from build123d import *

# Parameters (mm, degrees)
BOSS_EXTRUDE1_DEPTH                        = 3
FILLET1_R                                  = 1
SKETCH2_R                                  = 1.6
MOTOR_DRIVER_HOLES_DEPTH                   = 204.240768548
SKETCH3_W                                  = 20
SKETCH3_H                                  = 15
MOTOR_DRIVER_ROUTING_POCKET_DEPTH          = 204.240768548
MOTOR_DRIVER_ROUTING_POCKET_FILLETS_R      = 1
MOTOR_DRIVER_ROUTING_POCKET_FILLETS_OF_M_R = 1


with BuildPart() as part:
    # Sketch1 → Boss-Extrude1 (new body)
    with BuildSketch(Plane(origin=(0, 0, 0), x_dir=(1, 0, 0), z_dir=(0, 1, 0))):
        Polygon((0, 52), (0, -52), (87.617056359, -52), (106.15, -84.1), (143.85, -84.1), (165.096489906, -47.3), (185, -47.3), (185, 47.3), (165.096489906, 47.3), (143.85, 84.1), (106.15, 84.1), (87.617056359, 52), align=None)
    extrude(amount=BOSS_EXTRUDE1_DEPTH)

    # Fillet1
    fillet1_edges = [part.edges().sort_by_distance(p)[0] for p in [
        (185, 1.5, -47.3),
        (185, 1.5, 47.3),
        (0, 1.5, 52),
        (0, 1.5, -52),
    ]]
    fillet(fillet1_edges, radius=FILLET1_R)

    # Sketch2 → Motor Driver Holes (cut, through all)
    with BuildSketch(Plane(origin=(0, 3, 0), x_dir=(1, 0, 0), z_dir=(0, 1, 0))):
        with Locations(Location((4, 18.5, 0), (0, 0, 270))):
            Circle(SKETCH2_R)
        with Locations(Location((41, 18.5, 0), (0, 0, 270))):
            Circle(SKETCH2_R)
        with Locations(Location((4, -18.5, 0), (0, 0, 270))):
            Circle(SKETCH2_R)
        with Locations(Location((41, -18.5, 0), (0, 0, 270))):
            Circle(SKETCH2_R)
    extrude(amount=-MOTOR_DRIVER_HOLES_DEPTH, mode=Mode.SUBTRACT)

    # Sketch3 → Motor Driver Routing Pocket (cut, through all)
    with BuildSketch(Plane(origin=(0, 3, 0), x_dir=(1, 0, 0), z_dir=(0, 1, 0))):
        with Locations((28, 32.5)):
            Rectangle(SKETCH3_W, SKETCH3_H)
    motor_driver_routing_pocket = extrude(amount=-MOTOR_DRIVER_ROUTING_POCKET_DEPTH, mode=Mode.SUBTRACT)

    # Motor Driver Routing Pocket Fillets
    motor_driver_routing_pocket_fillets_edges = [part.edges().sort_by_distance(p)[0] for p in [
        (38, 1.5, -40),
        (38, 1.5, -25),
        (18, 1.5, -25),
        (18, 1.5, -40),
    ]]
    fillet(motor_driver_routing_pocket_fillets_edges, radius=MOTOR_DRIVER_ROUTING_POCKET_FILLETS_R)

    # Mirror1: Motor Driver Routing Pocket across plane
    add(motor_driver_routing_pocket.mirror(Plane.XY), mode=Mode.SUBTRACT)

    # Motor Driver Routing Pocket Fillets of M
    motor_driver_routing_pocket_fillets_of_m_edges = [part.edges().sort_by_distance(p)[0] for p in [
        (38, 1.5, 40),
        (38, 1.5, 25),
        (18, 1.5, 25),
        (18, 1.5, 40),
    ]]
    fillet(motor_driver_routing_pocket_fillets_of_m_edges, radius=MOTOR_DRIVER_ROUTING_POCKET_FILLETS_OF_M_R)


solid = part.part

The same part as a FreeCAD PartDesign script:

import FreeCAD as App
import Part
import Sketcher

V = App.Vector
Q = App.Units.Quantity


def edges_at(feature, points):
    """Names of the edges that pass closest to the given points."""
    edges = feature.Shape.Edges
    near = lambda p: min(range(len(edges)), key=lambda i: edges[i].distToShape(Part.Vertex(*p))[0])
    return sorted({f"Edge{near(p) + 1}" for p in points})

doc = App.newDocument("Part")
body = doc.addObject("PartDesign::Body", "Body")

sketch1 = body.newObject("Sketcher::SketchObject", "Sketch")
sketch1.AttachmentSupport = (doc.getObject("XZ_Plane"), [""])
sketch1.MapMode = "FlatFace"
sketch1.addGeometry(Part.LineSegment(V(0, -52, 0), V(0, 52, 0)), False)
sketch1.addGeometry(Part.LineSegment(V(0, 52, 0), V(88, 52, 0)), False)
sketch1.addGeometry(Part.LineSegment(V(88, 52, 0), V(106, 84, 0)), False)
sketch1.addGeometry(Part.LineSegment(V(106, 84, 0), V(144, 84, 0)), False)
sketch1.addGeometry(Part.LineSegment(V(144, 84, 0), V(165, 47, 0)), False)
sketch1.addGeometry(Part.LineSegment(V(165, 47, 0), V(185, 47, 0)), False)
sketch1.addGeometry(Part.LineSegment(V(185, 47, 0), V(185, -47, 0)), False)
sketch1.addGeometry(Part.LineSegment(V(185, -47, 0), V(165, -47, 0)), False)
sketch1.addGeometry(Part.LineSegment(V(165, -47, 0), V(144, -84, 0)), False)
sketch1.addGeometry(Part.LineSegment(V(144, -84, 0), V(106, -84, 0)), False)
sketch1.addGeometry(Part.LineSegment(V(106, -84, 0), V(88, -52, 0)), False)
sketch1.addGeometry(Part.LineSegment(V(88, -52, 0), V(0, -52, 0)), False)
sketch1.addConstraint(Sketcher.Constraint("Coincident", 0, 2, 1, 1))
sketch1.addConstraint(Sketcher.Constraint("Coincident", 1, 2, 2, 1))
sketch1.addConstraint(Sketcher.Constraint("Coincident", 2, 2, 3, 1))
sketch1.addConstraint(Sketcher.Constraint("Coincident", 3, 2, 4, 1))
sketch1.addConstraint(Sketcher.Constraint("Coincident", 4, 2, 5, 1))
sketch1.addConstraint(Sketcher.Constraint("Coincident", 5, 2, 6, 1))
sketch1.addConstraint(Sketcher.Constraint("Coincident", 6, 2, 7, 1))
sketch1.addConstraint(Sketcher.Constraint("Coincident", 7, 2, 8, 1))
sketch1.addConstraint(Sketcher.Constraint("Coincident", 8, 2, 9, 1))
sketch1.addConstraint(Sketcher.Constraint("Coincident", 9, 2, 10, 1))
sketch1.addConstraint(Sketcher.Constraint("Coincident", 10, 2, 11, 1))
sketch1.addConstraint(Sketcher.Constraint("Coincident", 11, 2, 0, 1))
sketch1.addConstraint(Sketcher.Constraint("Vertical", 0))
sketch1.addConstraint(Sketcher.Constraint("Horizontal", 1))
sketch1.addConstraint(Sketcher.Constraint("Horizontal", 3))
sketch1.addConstraint(Sketcher.Constraint("Horizontal", 5))
sketch1.addConstraint(Sketcher.Constraint("Vertical", 6))
sketch1.addConstraint(Sketcher.Constraint("Horizontal", 7))
sketch1.addConstraint(Sketcher.Constraint("Horizontal", 9))
sketch1.addConstraint(Sketcher.Constraint("Horizontal", 11))
sketch1.addConstraint(Sketcher.Constraint("Symmetric", 0, 2, 11, 2, -1, 1))
sketch1.addConstraint(Sketcher.Constraint("Symmetric", 4, 2, 7, 2, -1))
sketch1.addConstraint(Sketcher.Constraint("Symmetric", 3, 2, 8, 2, -1))
sketch1.addConstraint(Sketcher.Constraint("Parallel", 2, 8))
sketch1.addConstraint(Sketcher.Constraint("Parallel", 4, 10))
sketch1.addConstraint(Sketcher.Constraint("Vertical", 2, 2, 9, 2))
sketch1.addConstraint(Sketcher.Constraint("DistanceY", 0, 1, 0, 2, Q("104 mm")))
sketch1.addConstraint(Sketcher.Constraint("Angle", 2, Q("60 deg")))
sketch1.addConstraint(Sketcher.Constraint("DistanceX", 3, 1, 3, 2, Q("37.7 mm")))
sketch1.addConstraint(Sketcher.Constraint("DistanceY", 6, 2, 6, 1, Q("94.6 mm")))
sketch1.addConstraint(Sketcher.Constraint("DistanceX", -1, 1, 5, 2, Q("185 mm")))
sketch1.addConstraint(Sketcher.Constraint("DistanceY", -1, 1, 2, 2, Q("84.1 mm")))
sketch1.addConstraint(Sketcher.Constraint("DistanceX", -1, 1, 2, 2, Q("106.15 mm")))
pad1 = body.newObject("PartDesign::Pad", "Pad")
pad1.Profile = sketch1
pad1.Length = 3
pad1.Reversed = True
doc.recompute()

fillet = body.newObject("PartDesign::Fillet", "Fillet")
fillet.Base = (pad1, edges_at(pad1, [
    (185, 1.5, -47.3),
    (185, 1.5, 47.3),
    (0, 1.5, 52),
    (0, 1.5, -52),
]))
fillet.Radius = 1

sketch2 = body.newObject("Sketcher::SketchObject", "Sketch001")
sketch2.AttachmentSupport = (doc.getObject("XZ_Plane"), [""])
sketch2.MapMode = "FlatFace"
sketch2.AttachmentOffset = App.Placement(V(0, 0, -3), App.Rotation())
sketch2.addGeometry(Part.Circle(V(4, -18.5, 0), V(0, 0, 1), 1.6), False)
sketch2.addGeometry(Part.Circle(V(41, -18.5, 0), V(0, 0, 1), 1.6), False)
sketch2.addGeometry(Part.Circle(V(4, 18.5, 0), V(0, 0, 1), 1.6), False)
sketch2.addGeometry(Part.Circle(V(41, 18.5, 0), V(0, 0, 1), 1.6), False)
sketch2.addConstraint(Sketcher.Constraint("Equal", 0, 1))
sketch2.addConstraint(Sketcher.Constraint("Equal", 1, 2))
sketch2.addConstraint(Sketcher.Constraint("Equal", 2, 3))
sketch2.addConstraint(Sketcher.Constraint("Symmetric", 0, 3, 2, 3, -1))
sketch2.addConstraint(Sketcher.Constraint("Symmetric", 1, 3, 3, 3, -1))
sketch2.addConstraint(Sketcher.Constraint("Horizontal", 0, 3, 1, 3))
sketch2.addConstraint(Sketcher.Constraint("Diameter", 0, Q("3.2 mm")))
sketch2.addConstraint(Sketcher.Constraint("DistanceX", -1, 1, 0, 3, Q("4 mm")))
sketch2.addConstraint(Sketcher.Constraint("DistanceX", -1, 1, 1, 3, Q("41 mm")))
sketch2.addConstraint(Sketcher.Constraint("DistanceY", 0, 3, 2, 3, Q("37 mm")))
pocket1 = body.newObject("PartDesign::Pocket", "Pocket")
pocket1.Profile = sketch2
pocket1.Type = "ThroughAll"
pocket1.Reversed = True

sketch3 = body.newObject("Sketcher::SketchObject", "Sketch002")
sketch3.AttachmentSupport = (doc.getObject("XZ_Plane"), [""])
sketch3.MapMode = "FlatFace"
sketch3.AttachmentOffset = App.Placement(V(0, 0, -3), App.Rotation())
sketch3.addGeometry(Part.LineSegment(V(18, -40, 0), V(18, -25, 0)), False)
sketch3.addGeometry(Part.LineSegment(V(18, -25, 0), V(38, -25, 0)), False)
sketch3.addGeometry(Part.LineSegment(V(38, -25, 0), V(38, -40, 0)), False)
sketch3.addGeometry(Part.LineSegment(V(38, -40, 0), V(18, -40, 0)), False)
sketch3.addConstraint(Sketcher.Constraint("Coincident", 0, 2, 1, 1))
sketch3.addConstraint(Sketcher.Constraint("Coincident", 1, 2, 2, 1))
sketch3.addConstraint(Sketcher.Constraint("Coincident", 2, 2, 3, 1))
sketch3.addConstraint(Sketcher.Constraint("Coincident", 3, 2, 0, 1))
sketch3.addConstraint(Sketcher.Constraint("Vertical", 0))
sketch3.addConstraint(Sketcher.Constraint("Horizontal", 1))
sketch3.addConstraint(Sketcher.Constraint("Vertical", 2))
sketch3.addConstraint(Sketcher.Constraint("Horizontal", 3))
sketch3.addConstraint(Sketcher.Constraint("DistanceX", 1, 1, 1, 2, Q("20 mm")))
sketch3.addConstraint(Sketcher.Constraint("DistanceY", 0, 1, 0, 2, Q("15 mm")))
sketch3.addConstraint(Sketcher.Constraint("DistanceX", -1, 1, 0, 2, Q("18 mm")))
sketch3.addConstraint(Sketcher.Constraint("DistanceY", 0, 2, -1, 1, Q("25 mm")))
pocket2 = body.newObject("PartDesign::Pocket", "Pocket001")
pocket2.Profile = sketch3
pocket2.Type = "ThroughAll"
pocket2.Reversed = True
doc.recompute()

fillet2 = body.newObject("PartDesign::Fillet", "Fillet001")
fillet2.Base = (pocket2, edges_at(pocket2, [
    (38, 1.5, -40),
    (38, 1.5, -25),
    (18, 1.5, -25),
    (18, 1.5, -40),
]))
fillet2.Radius = 1
doc.recompute()

mirrored = body.newObject("PartDesign::Mirrored", "Mirrored")
mirrored.Originals = [pocket2]
mirrored.MirrorPlane = (doc.getObject("XY_Plane"), [""])
body.Tip = mirrored
doc.recompute()

fillet3 = body.newObject("PartDesign::Fillet", "Fillet002")
fillet3.Base = (mirrored, edges_at(mirrored, [
    (38, 1.5, 40),
    (38, 1.5, 25),
    (18, 1.5, 25),
    (18, 1.5, 40),
]))
fillet3.Radius = 1

doc.recompute()
